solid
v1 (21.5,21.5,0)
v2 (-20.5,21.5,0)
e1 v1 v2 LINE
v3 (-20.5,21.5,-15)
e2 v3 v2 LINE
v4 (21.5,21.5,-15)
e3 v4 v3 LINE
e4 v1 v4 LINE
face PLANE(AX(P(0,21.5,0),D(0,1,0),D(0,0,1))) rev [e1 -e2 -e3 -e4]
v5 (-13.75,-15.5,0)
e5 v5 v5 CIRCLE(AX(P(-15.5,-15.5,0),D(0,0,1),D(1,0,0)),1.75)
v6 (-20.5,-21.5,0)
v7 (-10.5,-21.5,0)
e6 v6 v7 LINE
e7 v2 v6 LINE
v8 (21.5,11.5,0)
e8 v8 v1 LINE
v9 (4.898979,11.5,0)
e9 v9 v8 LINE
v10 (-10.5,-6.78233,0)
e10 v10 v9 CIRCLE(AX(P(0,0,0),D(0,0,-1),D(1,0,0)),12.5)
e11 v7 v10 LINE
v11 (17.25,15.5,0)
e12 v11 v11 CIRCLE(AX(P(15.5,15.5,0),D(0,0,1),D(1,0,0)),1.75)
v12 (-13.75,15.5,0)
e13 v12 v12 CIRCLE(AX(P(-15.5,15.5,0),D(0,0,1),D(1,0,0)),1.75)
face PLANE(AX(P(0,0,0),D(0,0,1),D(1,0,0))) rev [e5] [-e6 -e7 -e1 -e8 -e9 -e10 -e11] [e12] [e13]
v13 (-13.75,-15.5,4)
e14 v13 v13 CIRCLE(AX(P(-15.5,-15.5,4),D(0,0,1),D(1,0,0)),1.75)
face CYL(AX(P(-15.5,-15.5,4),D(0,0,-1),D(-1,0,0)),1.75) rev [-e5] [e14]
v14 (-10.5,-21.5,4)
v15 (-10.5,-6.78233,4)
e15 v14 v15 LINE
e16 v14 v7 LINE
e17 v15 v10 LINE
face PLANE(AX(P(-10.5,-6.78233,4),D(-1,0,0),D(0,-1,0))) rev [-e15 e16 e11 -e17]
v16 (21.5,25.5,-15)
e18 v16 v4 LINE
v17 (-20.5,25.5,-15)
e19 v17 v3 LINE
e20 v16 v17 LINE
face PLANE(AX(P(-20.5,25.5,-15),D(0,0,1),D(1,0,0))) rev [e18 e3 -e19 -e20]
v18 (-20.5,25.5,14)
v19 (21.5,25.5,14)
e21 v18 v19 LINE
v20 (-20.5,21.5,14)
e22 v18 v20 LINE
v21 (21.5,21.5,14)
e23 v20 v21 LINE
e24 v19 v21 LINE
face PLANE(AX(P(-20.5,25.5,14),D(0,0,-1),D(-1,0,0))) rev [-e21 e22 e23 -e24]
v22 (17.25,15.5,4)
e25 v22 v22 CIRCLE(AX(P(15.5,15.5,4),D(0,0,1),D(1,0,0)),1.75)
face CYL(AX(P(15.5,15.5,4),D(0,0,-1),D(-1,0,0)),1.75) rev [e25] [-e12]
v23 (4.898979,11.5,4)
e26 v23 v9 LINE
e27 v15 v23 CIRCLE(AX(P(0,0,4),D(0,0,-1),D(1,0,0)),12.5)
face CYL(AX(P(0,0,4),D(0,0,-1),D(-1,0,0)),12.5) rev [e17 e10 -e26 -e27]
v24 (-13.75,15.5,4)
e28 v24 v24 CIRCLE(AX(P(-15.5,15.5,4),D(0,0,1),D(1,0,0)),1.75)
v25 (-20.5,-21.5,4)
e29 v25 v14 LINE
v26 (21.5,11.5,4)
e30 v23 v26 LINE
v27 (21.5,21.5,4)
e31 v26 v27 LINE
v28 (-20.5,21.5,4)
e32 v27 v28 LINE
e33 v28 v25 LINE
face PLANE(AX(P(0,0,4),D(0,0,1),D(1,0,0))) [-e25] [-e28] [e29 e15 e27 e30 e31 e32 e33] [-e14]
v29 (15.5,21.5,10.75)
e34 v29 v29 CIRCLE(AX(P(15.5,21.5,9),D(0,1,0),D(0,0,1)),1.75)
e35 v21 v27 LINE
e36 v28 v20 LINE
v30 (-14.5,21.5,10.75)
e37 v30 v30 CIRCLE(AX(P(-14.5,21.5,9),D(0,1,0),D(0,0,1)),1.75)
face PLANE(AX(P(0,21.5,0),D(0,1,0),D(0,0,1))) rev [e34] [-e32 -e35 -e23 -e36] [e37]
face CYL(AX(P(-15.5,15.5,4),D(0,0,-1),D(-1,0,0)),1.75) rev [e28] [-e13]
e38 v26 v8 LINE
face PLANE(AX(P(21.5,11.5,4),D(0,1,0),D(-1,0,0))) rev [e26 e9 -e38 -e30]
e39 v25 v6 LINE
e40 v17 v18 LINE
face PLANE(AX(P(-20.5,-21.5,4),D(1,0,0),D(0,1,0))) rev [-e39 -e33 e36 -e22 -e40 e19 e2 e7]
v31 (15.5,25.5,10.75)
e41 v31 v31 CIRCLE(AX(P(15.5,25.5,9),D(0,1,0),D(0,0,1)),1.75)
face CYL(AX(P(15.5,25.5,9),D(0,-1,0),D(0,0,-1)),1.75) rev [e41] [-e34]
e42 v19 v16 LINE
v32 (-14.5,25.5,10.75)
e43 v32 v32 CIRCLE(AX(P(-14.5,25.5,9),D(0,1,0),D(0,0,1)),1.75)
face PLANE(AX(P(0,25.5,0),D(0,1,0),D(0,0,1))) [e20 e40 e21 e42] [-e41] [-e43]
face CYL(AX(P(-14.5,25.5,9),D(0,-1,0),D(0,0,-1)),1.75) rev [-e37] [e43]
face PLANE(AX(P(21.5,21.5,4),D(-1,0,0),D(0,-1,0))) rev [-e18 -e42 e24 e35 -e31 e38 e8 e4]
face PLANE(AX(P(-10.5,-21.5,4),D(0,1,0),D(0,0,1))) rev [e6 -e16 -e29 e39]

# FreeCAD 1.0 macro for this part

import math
import FreeCAD as App
import Part
import Sketcher
from FreeCAD import Vector
Q = App.Units.Quantity


def add_polygon(sketch, points):
    """Adds a closed chain of lines whose ends are joined by coincident constraints."""
    first, n = sketch.GeometryCount, len(points)
    for a, b in zip(points, points[1:] + points[:1]):
        sketch.addGeometry(Part.LineSegment(App.Vector(*a, 0), App.Vector(*b, 0)), False)
    for i in range(n):
        sketch.addConstraint(Sketcher.Constraint("Coincident", first + i, 2, first + (i + 1) % n, 1))

doc = App.newDocument("Part")
params = doc.addObject("Spreadsheet::Sheet", "Params")
for row, (alias, value) in enumerate([
    ("sketch1_diameter", "3.5 mm"),
    ("sketch1_radius", "12.5 mm"),
    ("sketch1_width", "10 mm"),
    ("sketch1_width2", "42 mm"),
    ("sketch1_height", "43 mm"),
    ("pad1_length", "4 mm"),
    ("sketch2_diameter", "3.5 mm"),
    ("sketch2_width", "42 mm"),
    ("sketch2_height", "29 mm"),
    ("pad2_length", "4 mm"),
], start=1):
    params.set(f"A{row}", alias)
    params.set(f"B{row}", "=" + value)
    params.setAlias(f"B{row}", alias)

body = doc.addObject("PartDesign::Body", "Body")

# Sketch on XY plane
sketch1 = doc.addObject("Sketcher::SketchObject", "Sketch")
body.addObject(sketch1)
sketch1.AttachmentSupport = (doc.XY_Plane, [""])
sketch1.MapMode = "FlatFace"
sketch1.addGeometry([
    Part.LineSegment(Vector(-20.5, 21.5, 0), Vector(-20.5, -21.5, 0)),  # 0
    Part.LineSegment(Vector(-20.5, -21.5, 0), Vector(-10.5, -21.5, 0)),  # 1
    Part.LineSegment(Vector(-10.5, -21.5, 0), Vector(-10.5, -6.8, 0)),  # 2
    Part.ArcOfCircle(Part.Circle(Vector(0, 0, 0), Vector(0, 0, 1), 12.5), math.radians(67), math.radians(213)),  # 3
    Part.LineSegment(Vector(4.9, 11.5, 0), Vector(21.5, 11.5, 0)),  # 4
    Part.LineSegment(Vector(21.5, 11.5, 0), Vector(21.5, 21.5, 0)),  # 5
    Part.LineSegment(Vector(21.5, 21.5, 0), Vector(-20.5, 21.5, 0)),  # 6
    Part.Circle(Vector(-15.5, -15.5, 0), Vector(0, 0, 1), 1.8),  # 7
    Part.Circle(Vector(15.5, 15.5, 0), Vector(0, 0, 1), 1.8),  # 8
    Part.Circle(Vector(-15.5, 15.5, 0), Vector(0, 0, 1), 1.8),  # 9
], False)
sketch1.addConstraint([
    Sketcher.Constraint("Coincident", 0, 2, 1, 1),
    Sketcher.Constraint("Coincident", 1, 2, 2, 1),
    Sketcher.Constraint("Coincident", 2, 2, 3, 2),
    Sketcher.Constraint("Coincident", 3, 1, 4, 1),
    Sketcher.Constraint("Coincident", 4, 2, 5, 1),
    Sketcher.Constraint("Coincident", 5, 2, 6, 1),
    Sketcher.Constraint("Coincident", 6, 2, 0, 1),
    Sketcher.Constraint("Vertical", 0),
    Sketcher.Constraint("Horizontal", 1),
    Sketcher.Constraint("Vertical", 2),
    Sketcher.Constraint("Horizontal", 4),
    Sketcher.Constraint("Vertical", 5),
    Sketcher.Constraint("Horizontal", 6),
    Sketcher.Constraint("Coincident", 3, 3, -1, 1),
    Sketcher.Constraint("Equal", 7, 8),
    Sketcher.Constraint("Equal", 8, 9),
    Sketcher.Constraint("Symmetric", 7, 3, 8, 3, -1, 1),
    Sketcher.Constraint("Symmetric", 8, 3, 9, 3, -2),
    Sketcher.Constraint("Equal", 1, 5),
    Sketcher.Constraint("Diameter", 7, Q("3.5 mm")),
    Sketcher.Constraint("Radius", 3, Q("12.5 mm")),
    Sketcher.Constraint("DistanceX", 1, 1, 1, 2, Q("10 mm")),
    Sketcher.Constraint("DistanceX", 6, 2, 6, 1, Q("42 mm")),
    Sketcher.Constraint("DistanceY", 0, 2, 0, 1, Q("43 mm")),
    Sketcher.Constraint("DistanceX", 7, 3, 8, 3, Q("31 mm")),
    Sketcher.Constraint("DistanceY", 7, 3, 8, 3, Q("31 mm")),
    Sketcher.Constraint("DistanceX", 0, 2, 7, 3, Q("5 mm")),
    Sketcher.Constraint("DistanceY", 0, 2, 7, 3, Q("6 mm")),
])
sketch1.setExpression("Constraints[19]", "Params.sketch1_diameter")
sketch1.setExpression("Constraints[20]", "Params.sketch1_radius")
sketch1.setExpression("Constraints[21]", "Params.sketch1_width")
sketch1.setExpression("Constraints[22]", "Params.sketch1_width2")
sketch1.setExpression("Constraints[23]", "Params.sketch1_height")
pad1 = doc.addObject("PartDesign::Pad", "Pad")
body.addObject(pad1)
pad1.Profile = sketch1
pad1.setExpression("Length", "Params.pad1_length")

# Sketch on XZ plane
sketch2 = doc.addObject("Sketcher::SketchObject", "Sketch001")
body.addObject(sketch2)
sketch2.AttachmentSupport = (doc.XZ_Plane, [""])
sketch2.MapMode = "FlatFace"
sketch2.AttachmentOffset = App.Placement(Vector(0, 0, -21.5), App.Rotation())
add_polygon(sketch2, [(-20.5, -15), (-20.5, 14), (21.5, 14), (21.5, -15)])  # lines 0-3
sketch2.addGeometry(Part.Circle(Vector(-14.5, 9, 0), Vector(0, 0, 1), 1.8), False)  # 4
sketch2.addGeometry(Part.Circle(Vector(15.5, 9, 0), Vector(0, 0, 1), 1.8), False)  # 5
sketch2.addConstraint([
    Sketcher.Constraint("Vertical", 0),
    Sketcher.Constraint("Horizontal", 1),
    Sketcher.Constraint("Vertical", 2),
    Sketcher.Constraint("Horizontal", 3),
    Sketcher.Constraint("Equal", 4, 5),
    Sketcher.Constraint("Horizontal", 4, 3, 5, 3),
    Sketcher.Constraint("Diameter", 4, Q("3.5 mm")),
    Sketcher.Constraint("DistanceX", 1, 1, 1, 2, Q("42 mm")),
    Sketcher.Constraint("DistanceY", 0, 1, 0, 2, Q("29 mm")),
    Sketcher.Constraint("DistanceY", -1, 1, 4, 3, Q("9 mm")),
    Sketcher.Constraint("DistanceY", -1, 1, 0, 2, Q("14 mm")),
    Sketcher.Constraint("DistanceX", 4, 3, 5, 3, Q("30 mm")),
    Sketcher.Constraint("DistanceX", 0, 2, 4, 3, Q("6 mm")),
    Sketcher.Constraint("DistanceX", 4, 3, -1, 1, Q("14.5 mm")),
])
sketch2.setExpression("Constraints[10]", "Params.sketch2_diameter")
sketch2.setExpression("Constraints[11]", "Params.sketch2_width")
sketch2.setExpression("Constraints[12]", "Params.sketch2_height")
pad2 = doc.addObject("PartDesign::Pad", "Pad001")
body.addObject(pad2)
pad2.Profile = sketch2
pad2.setExpression("Length", "Params.pad2_length")
pad2.Reversed = True

doc.recompute()
